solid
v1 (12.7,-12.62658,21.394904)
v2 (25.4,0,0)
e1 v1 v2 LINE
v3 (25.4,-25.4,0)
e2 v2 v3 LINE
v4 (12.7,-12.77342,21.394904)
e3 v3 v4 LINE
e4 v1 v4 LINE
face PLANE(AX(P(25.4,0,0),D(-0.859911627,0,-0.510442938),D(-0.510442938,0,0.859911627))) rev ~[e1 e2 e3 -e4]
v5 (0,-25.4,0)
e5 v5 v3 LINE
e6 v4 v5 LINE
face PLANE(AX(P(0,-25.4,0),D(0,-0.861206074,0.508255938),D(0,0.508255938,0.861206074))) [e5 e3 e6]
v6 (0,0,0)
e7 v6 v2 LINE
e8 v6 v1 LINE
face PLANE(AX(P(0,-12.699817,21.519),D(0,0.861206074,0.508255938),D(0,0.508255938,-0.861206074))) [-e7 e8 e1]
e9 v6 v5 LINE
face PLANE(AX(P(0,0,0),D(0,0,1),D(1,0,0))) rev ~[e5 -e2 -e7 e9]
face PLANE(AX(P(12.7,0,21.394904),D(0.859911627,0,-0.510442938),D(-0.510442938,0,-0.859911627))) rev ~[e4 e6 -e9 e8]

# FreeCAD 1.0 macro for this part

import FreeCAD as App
import Part
import Sketcher
Q = App.Units.Quantity

doc = App.newDocument("Part")
params = doc.addObject("Spreadsheet::Sheet", "Params")
for row, (alias, value) in enumerate([
    ("sketch1_width", "1 in"),
    ("pad1_length", "1 in"),
    ("pocket1_length", "1 in"),
], start=1):
    params.set(f"A{row}", alias)
    params.set(f"B{row}", "=" + value)
    params.setAlias(f"B{row}", alias)

body = doc.addObject("PartDesign::Body", "Body")

# Sketch on XZ plane
sketch1 = body.newObject("Sketcher::SketchObject", "Sketch")
sketch1.AttachmentSupport = (doc.getObject("XZ_Plane"), [""])
sketch1.MapMode = "FlatFace"
sketch1.addGeometry(Part.LineSegment(App.Vector(12.7, 21.394904, 0), App.Vector(0, 0, 0)), False)
sketch1.addGeometry(Part.LineSegment(App.Vector(0, 0, 0), App.Vector(25.4, 0, 0)), False)
sketch1.addGeometry(Part.LineSegment(App.Vector(25.4, 0, 0), App.Vector(12.7, 21.394904, 0)), False)
sketch1.addConstraint(Sketcher.Constraint("Coincident", 0, 2, 1, 1))
sketch1.addConstraint(Sketcher.Constraint("Coincident", 1, 2, 2, 1))
sketch1.addConstraint(Sketcher.Constraint("Coincident", 2, 2, 0, 1))
sketch1.addConstraint(Sketcher.Constraint("Horizontal", 1))
sketch1.addConstraint(Sketcher.Constraint("Coincident", 0, 2, -1, 1))
sketch1.addConstraint(Sketcher.Constraint("Equal", 0, 2))
sketch1.addConstraint(Sketcher.Constraint("DistanceX", 1, 1, 1, 2, Q("1 in")))
sketch1.addConstraint(Sketcher.Constraint("Distance", 0, 24.880352))
sketch1.setExpression("Constraints[6]", "Params.sketch1_width")
pad1 = body.newObject("PartDesign::Pad", "Pad")
pad1.Profile = sketch1
pad1.setExpression("Length", "Params.pad1_length")

# Sketch on YZ plane
sketch2 = body.newObject("Sketcher::SketchObject", "Sketch001")
sketch2.AttachmentSupport = (doc.getObject("YZ_Plane"), [""])
sketch2.MapMode = "FlatFace"
sketch2.addGeometry(Part.LineSegment(App.Vector(-12.699817, 21.519, 0), App.Vector(0, 0, 0)), False)
sketch2.addGeometry(Part.LineSegment(App.Vector(0, 0, 0), App.Vector(0, 21.519, 0)), False)
sketch2.addGeometry(Part.LineSegment(App.Vector(0, 21.519, 0), App.Vector(-12.699817, 21.519, 0)), False)
sketch2.addGeometry(Part.LineSegment(App.Vector(-25.4, 21.519, 0), App.Vector(-25.4, 0, 0)), False)
sketch2.addGeometry(Part.LineSegment(App.Vector(-25.4, 0, 0), App.Vector(-12.700183, 21.519, 0)), False)
sketch2.addGeometry(Part.LineSegment(App.Vector(-12.700183, 21.519, 0), App.Vector(-25.4, 21.519, 0)), False)
sketch2.addConstraint(Sketcher.Constraint("Coincident", 0, 2, 1, 1))
sketch2.addConstraint(Sketcher.Constraint("Coincident", 1, 2, 2, 1))
sketch2.addConstraint(Sketcher.Constraint("Coincident", 2, 2, 0, 1))
sketch2.addConstraint(Sketcher.Constraint("Coincident", 3, 2, 4, 1))
sketch2.addConstraint(Sketcher.Constraint("Coincident", 4, 2, 5, 1))
sketch2.addConstraint(Sketcher.Constraint("Coincident", 5, 2, 3, 1))
sketch2.addConstraint(Sketcher.Constraint("Vertical", 1))
sketch2.addConstraint(Sketcher.Constraint("Horizontal", 2))
sketch2.addConstraint(Sketcher.Constraint("Vertical", 3))
sketch2.addConstraint(Sketcher.Constraint("Horizontal", 5))
sketch2.addConstraint(Sketcher.Constraint("Coincident", 0, 2, -1, 1))
sketch2.addConstraint(Sketcher.Constraint("PointOnObject", 3, 2, -1))
sketch2.addConstraint(Sketcher.Constraint("Horizontal", 2, 2, 4, 2))
sketch2.addConstraint(Sketcher.Constraint("Equal", 2, 5))
sketch2.addConstraint(Sketcher.Constraint("DistanceX", 3, 2, -1, 1, Q("1 in")))
sketch2.addConstraint(Sketcher.Constraint("DistanceY", 1, 1, 1, 2, 21.519))
sketch2.addConstraint(Sketcher.Constraint("Distance", 0, 24.987051))
pocket1 = body.newObject("PartDesign::Pocket", "Pocket")
pocket1.Profile = sketch2
pocket1.setExpression("Length", "Params.pocket1_length")
pocket1.Reversed = True

doc.recompute()
